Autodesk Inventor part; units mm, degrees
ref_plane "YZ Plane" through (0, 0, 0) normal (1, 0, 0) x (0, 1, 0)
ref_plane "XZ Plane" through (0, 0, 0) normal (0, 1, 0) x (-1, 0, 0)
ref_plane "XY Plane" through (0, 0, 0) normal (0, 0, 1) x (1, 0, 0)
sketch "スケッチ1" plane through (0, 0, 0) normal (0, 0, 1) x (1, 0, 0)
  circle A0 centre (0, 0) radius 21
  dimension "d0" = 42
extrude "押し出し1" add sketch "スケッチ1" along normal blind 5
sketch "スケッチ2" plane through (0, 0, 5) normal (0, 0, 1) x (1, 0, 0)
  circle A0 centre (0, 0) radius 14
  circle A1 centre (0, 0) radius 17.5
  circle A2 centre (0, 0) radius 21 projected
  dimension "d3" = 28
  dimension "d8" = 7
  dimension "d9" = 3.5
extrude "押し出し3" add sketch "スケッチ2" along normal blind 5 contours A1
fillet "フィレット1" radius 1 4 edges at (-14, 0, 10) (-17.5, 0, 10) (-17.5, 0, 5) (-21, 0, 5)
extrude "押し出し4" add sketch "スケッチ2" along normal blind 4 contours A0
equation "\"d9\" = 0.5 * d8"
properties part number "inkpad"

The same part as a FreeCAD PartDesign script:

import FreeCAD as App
import Part
import Sketcher
from FreeCAD import Vector
Q = App.Units.Quantity


def edges_at(feature, points):
    """Names of the edges that pass closest to the given points."""
    edges = feature.Shape.Edges
    near = lambda p: min(range(len(edges)), key=lambda i: edges[i].distToShape(Part.Vertex(*p))[0])
    return sorted({f"Edge{near(p) + 1}" for p in points})

doc = App.newDocument("Part")
body = doc.addObject("PartDesign::Body", "Body")

sketch1 = body.newObject("Sketcher::SketchObject", "Sketch")
sketch1.AttachmentSupport = (doc.getObject("XY_Plane"), [""])
sketch1.MapMode = "FlatFace"
sketch1.addGeometry(Part.Circle(Vector(0, 0, 0), Vector(0, 0, 1), 21), False)
sketch1.addConstraint(Sketcher.Constraint("Coincident", 0, 3, -1, 1))
sketch1.addConstraint(Sketcher.Constraint("Diameter", 0, Q("42 mm")))
pad1 = body.newObject("PartDesign::Pad", "Pad")
pad1.Profile = sketch1
pad1.Length = 5

sketch2 = body.newObject("Sketcher::SketchObject", "Sketch001")
sketch2.AttachmentSupport = (doc.getObject("XY_Plane"), [""])
sketch2.MapMode = "FlatFace"
sketch2.AttachmentOffset = App.Placement(Vector(0, 0, 5), App.Rotation())
sketch2.addGeometry(Part.Circle(Vector(0, 0, 0), Vector(0, 0, 1), 18), False)
sketch2.addGeometry(Part.Circle(Vector(0, 0, 0), Vector(0, 0, 1), 14), False)
sketch2.addConstraint(Sketcher.Constraint("Coincident", 0, 3, -1, 1))
sketch2.addConstraint(Sketcher.Constraint("Coincident", 1, 3, -1, 1))
sketch2.addConstraint(Sketcher.Constraint("Diameter", 1, Q("28 mm")))
sketch2.addConstraint(Sketcher.Constraint("Diameter", 0, Q("35 mm")))
pad2 = body.newObject("PartDesign::Pad", "Pad001")
pad2.Profile = sketch2
pad2.Length = 5
doc.recompute()

fillet = body.newObject("PartDesign::Fillet", "Fillet")
fillet.Base = (pad2, edges_at(pad2, [
    (-14, 0, 10),
    (-17.5, 0, 10),
    (-17.5, 0, 5),
    (-21, 0, 5),
]))
fillet.Radius = 1

sketch3 = body.newObject("Sketcher::SketchObject", "Sketch002")
sketch3.AttachmentSupport = (doc.getObject("XY_Plane"), [""])
sketch3.MapMode = "FlatFace"
sketch3.AttachmentOffset = App.Placement(Vector(0, 0, 5), App.Rotation())
sketch3.addGeometry(Part.Circle(Vector(0, 0, 0), Vector(0, 0, 1), 14), False)
sketch3.addConstraint(Sketcher.Constraint("Coincident", 0, 3, -1, 1))
sketch3.addConstraint(Sketcher.Constraint("Diameter", 0, Q("28 mm")))
pad3 = body.newObject("PartDesign::Pad", "Pad002")
pad3.Profile = sketch3
pad3.Length = 4

doc.recompute()
